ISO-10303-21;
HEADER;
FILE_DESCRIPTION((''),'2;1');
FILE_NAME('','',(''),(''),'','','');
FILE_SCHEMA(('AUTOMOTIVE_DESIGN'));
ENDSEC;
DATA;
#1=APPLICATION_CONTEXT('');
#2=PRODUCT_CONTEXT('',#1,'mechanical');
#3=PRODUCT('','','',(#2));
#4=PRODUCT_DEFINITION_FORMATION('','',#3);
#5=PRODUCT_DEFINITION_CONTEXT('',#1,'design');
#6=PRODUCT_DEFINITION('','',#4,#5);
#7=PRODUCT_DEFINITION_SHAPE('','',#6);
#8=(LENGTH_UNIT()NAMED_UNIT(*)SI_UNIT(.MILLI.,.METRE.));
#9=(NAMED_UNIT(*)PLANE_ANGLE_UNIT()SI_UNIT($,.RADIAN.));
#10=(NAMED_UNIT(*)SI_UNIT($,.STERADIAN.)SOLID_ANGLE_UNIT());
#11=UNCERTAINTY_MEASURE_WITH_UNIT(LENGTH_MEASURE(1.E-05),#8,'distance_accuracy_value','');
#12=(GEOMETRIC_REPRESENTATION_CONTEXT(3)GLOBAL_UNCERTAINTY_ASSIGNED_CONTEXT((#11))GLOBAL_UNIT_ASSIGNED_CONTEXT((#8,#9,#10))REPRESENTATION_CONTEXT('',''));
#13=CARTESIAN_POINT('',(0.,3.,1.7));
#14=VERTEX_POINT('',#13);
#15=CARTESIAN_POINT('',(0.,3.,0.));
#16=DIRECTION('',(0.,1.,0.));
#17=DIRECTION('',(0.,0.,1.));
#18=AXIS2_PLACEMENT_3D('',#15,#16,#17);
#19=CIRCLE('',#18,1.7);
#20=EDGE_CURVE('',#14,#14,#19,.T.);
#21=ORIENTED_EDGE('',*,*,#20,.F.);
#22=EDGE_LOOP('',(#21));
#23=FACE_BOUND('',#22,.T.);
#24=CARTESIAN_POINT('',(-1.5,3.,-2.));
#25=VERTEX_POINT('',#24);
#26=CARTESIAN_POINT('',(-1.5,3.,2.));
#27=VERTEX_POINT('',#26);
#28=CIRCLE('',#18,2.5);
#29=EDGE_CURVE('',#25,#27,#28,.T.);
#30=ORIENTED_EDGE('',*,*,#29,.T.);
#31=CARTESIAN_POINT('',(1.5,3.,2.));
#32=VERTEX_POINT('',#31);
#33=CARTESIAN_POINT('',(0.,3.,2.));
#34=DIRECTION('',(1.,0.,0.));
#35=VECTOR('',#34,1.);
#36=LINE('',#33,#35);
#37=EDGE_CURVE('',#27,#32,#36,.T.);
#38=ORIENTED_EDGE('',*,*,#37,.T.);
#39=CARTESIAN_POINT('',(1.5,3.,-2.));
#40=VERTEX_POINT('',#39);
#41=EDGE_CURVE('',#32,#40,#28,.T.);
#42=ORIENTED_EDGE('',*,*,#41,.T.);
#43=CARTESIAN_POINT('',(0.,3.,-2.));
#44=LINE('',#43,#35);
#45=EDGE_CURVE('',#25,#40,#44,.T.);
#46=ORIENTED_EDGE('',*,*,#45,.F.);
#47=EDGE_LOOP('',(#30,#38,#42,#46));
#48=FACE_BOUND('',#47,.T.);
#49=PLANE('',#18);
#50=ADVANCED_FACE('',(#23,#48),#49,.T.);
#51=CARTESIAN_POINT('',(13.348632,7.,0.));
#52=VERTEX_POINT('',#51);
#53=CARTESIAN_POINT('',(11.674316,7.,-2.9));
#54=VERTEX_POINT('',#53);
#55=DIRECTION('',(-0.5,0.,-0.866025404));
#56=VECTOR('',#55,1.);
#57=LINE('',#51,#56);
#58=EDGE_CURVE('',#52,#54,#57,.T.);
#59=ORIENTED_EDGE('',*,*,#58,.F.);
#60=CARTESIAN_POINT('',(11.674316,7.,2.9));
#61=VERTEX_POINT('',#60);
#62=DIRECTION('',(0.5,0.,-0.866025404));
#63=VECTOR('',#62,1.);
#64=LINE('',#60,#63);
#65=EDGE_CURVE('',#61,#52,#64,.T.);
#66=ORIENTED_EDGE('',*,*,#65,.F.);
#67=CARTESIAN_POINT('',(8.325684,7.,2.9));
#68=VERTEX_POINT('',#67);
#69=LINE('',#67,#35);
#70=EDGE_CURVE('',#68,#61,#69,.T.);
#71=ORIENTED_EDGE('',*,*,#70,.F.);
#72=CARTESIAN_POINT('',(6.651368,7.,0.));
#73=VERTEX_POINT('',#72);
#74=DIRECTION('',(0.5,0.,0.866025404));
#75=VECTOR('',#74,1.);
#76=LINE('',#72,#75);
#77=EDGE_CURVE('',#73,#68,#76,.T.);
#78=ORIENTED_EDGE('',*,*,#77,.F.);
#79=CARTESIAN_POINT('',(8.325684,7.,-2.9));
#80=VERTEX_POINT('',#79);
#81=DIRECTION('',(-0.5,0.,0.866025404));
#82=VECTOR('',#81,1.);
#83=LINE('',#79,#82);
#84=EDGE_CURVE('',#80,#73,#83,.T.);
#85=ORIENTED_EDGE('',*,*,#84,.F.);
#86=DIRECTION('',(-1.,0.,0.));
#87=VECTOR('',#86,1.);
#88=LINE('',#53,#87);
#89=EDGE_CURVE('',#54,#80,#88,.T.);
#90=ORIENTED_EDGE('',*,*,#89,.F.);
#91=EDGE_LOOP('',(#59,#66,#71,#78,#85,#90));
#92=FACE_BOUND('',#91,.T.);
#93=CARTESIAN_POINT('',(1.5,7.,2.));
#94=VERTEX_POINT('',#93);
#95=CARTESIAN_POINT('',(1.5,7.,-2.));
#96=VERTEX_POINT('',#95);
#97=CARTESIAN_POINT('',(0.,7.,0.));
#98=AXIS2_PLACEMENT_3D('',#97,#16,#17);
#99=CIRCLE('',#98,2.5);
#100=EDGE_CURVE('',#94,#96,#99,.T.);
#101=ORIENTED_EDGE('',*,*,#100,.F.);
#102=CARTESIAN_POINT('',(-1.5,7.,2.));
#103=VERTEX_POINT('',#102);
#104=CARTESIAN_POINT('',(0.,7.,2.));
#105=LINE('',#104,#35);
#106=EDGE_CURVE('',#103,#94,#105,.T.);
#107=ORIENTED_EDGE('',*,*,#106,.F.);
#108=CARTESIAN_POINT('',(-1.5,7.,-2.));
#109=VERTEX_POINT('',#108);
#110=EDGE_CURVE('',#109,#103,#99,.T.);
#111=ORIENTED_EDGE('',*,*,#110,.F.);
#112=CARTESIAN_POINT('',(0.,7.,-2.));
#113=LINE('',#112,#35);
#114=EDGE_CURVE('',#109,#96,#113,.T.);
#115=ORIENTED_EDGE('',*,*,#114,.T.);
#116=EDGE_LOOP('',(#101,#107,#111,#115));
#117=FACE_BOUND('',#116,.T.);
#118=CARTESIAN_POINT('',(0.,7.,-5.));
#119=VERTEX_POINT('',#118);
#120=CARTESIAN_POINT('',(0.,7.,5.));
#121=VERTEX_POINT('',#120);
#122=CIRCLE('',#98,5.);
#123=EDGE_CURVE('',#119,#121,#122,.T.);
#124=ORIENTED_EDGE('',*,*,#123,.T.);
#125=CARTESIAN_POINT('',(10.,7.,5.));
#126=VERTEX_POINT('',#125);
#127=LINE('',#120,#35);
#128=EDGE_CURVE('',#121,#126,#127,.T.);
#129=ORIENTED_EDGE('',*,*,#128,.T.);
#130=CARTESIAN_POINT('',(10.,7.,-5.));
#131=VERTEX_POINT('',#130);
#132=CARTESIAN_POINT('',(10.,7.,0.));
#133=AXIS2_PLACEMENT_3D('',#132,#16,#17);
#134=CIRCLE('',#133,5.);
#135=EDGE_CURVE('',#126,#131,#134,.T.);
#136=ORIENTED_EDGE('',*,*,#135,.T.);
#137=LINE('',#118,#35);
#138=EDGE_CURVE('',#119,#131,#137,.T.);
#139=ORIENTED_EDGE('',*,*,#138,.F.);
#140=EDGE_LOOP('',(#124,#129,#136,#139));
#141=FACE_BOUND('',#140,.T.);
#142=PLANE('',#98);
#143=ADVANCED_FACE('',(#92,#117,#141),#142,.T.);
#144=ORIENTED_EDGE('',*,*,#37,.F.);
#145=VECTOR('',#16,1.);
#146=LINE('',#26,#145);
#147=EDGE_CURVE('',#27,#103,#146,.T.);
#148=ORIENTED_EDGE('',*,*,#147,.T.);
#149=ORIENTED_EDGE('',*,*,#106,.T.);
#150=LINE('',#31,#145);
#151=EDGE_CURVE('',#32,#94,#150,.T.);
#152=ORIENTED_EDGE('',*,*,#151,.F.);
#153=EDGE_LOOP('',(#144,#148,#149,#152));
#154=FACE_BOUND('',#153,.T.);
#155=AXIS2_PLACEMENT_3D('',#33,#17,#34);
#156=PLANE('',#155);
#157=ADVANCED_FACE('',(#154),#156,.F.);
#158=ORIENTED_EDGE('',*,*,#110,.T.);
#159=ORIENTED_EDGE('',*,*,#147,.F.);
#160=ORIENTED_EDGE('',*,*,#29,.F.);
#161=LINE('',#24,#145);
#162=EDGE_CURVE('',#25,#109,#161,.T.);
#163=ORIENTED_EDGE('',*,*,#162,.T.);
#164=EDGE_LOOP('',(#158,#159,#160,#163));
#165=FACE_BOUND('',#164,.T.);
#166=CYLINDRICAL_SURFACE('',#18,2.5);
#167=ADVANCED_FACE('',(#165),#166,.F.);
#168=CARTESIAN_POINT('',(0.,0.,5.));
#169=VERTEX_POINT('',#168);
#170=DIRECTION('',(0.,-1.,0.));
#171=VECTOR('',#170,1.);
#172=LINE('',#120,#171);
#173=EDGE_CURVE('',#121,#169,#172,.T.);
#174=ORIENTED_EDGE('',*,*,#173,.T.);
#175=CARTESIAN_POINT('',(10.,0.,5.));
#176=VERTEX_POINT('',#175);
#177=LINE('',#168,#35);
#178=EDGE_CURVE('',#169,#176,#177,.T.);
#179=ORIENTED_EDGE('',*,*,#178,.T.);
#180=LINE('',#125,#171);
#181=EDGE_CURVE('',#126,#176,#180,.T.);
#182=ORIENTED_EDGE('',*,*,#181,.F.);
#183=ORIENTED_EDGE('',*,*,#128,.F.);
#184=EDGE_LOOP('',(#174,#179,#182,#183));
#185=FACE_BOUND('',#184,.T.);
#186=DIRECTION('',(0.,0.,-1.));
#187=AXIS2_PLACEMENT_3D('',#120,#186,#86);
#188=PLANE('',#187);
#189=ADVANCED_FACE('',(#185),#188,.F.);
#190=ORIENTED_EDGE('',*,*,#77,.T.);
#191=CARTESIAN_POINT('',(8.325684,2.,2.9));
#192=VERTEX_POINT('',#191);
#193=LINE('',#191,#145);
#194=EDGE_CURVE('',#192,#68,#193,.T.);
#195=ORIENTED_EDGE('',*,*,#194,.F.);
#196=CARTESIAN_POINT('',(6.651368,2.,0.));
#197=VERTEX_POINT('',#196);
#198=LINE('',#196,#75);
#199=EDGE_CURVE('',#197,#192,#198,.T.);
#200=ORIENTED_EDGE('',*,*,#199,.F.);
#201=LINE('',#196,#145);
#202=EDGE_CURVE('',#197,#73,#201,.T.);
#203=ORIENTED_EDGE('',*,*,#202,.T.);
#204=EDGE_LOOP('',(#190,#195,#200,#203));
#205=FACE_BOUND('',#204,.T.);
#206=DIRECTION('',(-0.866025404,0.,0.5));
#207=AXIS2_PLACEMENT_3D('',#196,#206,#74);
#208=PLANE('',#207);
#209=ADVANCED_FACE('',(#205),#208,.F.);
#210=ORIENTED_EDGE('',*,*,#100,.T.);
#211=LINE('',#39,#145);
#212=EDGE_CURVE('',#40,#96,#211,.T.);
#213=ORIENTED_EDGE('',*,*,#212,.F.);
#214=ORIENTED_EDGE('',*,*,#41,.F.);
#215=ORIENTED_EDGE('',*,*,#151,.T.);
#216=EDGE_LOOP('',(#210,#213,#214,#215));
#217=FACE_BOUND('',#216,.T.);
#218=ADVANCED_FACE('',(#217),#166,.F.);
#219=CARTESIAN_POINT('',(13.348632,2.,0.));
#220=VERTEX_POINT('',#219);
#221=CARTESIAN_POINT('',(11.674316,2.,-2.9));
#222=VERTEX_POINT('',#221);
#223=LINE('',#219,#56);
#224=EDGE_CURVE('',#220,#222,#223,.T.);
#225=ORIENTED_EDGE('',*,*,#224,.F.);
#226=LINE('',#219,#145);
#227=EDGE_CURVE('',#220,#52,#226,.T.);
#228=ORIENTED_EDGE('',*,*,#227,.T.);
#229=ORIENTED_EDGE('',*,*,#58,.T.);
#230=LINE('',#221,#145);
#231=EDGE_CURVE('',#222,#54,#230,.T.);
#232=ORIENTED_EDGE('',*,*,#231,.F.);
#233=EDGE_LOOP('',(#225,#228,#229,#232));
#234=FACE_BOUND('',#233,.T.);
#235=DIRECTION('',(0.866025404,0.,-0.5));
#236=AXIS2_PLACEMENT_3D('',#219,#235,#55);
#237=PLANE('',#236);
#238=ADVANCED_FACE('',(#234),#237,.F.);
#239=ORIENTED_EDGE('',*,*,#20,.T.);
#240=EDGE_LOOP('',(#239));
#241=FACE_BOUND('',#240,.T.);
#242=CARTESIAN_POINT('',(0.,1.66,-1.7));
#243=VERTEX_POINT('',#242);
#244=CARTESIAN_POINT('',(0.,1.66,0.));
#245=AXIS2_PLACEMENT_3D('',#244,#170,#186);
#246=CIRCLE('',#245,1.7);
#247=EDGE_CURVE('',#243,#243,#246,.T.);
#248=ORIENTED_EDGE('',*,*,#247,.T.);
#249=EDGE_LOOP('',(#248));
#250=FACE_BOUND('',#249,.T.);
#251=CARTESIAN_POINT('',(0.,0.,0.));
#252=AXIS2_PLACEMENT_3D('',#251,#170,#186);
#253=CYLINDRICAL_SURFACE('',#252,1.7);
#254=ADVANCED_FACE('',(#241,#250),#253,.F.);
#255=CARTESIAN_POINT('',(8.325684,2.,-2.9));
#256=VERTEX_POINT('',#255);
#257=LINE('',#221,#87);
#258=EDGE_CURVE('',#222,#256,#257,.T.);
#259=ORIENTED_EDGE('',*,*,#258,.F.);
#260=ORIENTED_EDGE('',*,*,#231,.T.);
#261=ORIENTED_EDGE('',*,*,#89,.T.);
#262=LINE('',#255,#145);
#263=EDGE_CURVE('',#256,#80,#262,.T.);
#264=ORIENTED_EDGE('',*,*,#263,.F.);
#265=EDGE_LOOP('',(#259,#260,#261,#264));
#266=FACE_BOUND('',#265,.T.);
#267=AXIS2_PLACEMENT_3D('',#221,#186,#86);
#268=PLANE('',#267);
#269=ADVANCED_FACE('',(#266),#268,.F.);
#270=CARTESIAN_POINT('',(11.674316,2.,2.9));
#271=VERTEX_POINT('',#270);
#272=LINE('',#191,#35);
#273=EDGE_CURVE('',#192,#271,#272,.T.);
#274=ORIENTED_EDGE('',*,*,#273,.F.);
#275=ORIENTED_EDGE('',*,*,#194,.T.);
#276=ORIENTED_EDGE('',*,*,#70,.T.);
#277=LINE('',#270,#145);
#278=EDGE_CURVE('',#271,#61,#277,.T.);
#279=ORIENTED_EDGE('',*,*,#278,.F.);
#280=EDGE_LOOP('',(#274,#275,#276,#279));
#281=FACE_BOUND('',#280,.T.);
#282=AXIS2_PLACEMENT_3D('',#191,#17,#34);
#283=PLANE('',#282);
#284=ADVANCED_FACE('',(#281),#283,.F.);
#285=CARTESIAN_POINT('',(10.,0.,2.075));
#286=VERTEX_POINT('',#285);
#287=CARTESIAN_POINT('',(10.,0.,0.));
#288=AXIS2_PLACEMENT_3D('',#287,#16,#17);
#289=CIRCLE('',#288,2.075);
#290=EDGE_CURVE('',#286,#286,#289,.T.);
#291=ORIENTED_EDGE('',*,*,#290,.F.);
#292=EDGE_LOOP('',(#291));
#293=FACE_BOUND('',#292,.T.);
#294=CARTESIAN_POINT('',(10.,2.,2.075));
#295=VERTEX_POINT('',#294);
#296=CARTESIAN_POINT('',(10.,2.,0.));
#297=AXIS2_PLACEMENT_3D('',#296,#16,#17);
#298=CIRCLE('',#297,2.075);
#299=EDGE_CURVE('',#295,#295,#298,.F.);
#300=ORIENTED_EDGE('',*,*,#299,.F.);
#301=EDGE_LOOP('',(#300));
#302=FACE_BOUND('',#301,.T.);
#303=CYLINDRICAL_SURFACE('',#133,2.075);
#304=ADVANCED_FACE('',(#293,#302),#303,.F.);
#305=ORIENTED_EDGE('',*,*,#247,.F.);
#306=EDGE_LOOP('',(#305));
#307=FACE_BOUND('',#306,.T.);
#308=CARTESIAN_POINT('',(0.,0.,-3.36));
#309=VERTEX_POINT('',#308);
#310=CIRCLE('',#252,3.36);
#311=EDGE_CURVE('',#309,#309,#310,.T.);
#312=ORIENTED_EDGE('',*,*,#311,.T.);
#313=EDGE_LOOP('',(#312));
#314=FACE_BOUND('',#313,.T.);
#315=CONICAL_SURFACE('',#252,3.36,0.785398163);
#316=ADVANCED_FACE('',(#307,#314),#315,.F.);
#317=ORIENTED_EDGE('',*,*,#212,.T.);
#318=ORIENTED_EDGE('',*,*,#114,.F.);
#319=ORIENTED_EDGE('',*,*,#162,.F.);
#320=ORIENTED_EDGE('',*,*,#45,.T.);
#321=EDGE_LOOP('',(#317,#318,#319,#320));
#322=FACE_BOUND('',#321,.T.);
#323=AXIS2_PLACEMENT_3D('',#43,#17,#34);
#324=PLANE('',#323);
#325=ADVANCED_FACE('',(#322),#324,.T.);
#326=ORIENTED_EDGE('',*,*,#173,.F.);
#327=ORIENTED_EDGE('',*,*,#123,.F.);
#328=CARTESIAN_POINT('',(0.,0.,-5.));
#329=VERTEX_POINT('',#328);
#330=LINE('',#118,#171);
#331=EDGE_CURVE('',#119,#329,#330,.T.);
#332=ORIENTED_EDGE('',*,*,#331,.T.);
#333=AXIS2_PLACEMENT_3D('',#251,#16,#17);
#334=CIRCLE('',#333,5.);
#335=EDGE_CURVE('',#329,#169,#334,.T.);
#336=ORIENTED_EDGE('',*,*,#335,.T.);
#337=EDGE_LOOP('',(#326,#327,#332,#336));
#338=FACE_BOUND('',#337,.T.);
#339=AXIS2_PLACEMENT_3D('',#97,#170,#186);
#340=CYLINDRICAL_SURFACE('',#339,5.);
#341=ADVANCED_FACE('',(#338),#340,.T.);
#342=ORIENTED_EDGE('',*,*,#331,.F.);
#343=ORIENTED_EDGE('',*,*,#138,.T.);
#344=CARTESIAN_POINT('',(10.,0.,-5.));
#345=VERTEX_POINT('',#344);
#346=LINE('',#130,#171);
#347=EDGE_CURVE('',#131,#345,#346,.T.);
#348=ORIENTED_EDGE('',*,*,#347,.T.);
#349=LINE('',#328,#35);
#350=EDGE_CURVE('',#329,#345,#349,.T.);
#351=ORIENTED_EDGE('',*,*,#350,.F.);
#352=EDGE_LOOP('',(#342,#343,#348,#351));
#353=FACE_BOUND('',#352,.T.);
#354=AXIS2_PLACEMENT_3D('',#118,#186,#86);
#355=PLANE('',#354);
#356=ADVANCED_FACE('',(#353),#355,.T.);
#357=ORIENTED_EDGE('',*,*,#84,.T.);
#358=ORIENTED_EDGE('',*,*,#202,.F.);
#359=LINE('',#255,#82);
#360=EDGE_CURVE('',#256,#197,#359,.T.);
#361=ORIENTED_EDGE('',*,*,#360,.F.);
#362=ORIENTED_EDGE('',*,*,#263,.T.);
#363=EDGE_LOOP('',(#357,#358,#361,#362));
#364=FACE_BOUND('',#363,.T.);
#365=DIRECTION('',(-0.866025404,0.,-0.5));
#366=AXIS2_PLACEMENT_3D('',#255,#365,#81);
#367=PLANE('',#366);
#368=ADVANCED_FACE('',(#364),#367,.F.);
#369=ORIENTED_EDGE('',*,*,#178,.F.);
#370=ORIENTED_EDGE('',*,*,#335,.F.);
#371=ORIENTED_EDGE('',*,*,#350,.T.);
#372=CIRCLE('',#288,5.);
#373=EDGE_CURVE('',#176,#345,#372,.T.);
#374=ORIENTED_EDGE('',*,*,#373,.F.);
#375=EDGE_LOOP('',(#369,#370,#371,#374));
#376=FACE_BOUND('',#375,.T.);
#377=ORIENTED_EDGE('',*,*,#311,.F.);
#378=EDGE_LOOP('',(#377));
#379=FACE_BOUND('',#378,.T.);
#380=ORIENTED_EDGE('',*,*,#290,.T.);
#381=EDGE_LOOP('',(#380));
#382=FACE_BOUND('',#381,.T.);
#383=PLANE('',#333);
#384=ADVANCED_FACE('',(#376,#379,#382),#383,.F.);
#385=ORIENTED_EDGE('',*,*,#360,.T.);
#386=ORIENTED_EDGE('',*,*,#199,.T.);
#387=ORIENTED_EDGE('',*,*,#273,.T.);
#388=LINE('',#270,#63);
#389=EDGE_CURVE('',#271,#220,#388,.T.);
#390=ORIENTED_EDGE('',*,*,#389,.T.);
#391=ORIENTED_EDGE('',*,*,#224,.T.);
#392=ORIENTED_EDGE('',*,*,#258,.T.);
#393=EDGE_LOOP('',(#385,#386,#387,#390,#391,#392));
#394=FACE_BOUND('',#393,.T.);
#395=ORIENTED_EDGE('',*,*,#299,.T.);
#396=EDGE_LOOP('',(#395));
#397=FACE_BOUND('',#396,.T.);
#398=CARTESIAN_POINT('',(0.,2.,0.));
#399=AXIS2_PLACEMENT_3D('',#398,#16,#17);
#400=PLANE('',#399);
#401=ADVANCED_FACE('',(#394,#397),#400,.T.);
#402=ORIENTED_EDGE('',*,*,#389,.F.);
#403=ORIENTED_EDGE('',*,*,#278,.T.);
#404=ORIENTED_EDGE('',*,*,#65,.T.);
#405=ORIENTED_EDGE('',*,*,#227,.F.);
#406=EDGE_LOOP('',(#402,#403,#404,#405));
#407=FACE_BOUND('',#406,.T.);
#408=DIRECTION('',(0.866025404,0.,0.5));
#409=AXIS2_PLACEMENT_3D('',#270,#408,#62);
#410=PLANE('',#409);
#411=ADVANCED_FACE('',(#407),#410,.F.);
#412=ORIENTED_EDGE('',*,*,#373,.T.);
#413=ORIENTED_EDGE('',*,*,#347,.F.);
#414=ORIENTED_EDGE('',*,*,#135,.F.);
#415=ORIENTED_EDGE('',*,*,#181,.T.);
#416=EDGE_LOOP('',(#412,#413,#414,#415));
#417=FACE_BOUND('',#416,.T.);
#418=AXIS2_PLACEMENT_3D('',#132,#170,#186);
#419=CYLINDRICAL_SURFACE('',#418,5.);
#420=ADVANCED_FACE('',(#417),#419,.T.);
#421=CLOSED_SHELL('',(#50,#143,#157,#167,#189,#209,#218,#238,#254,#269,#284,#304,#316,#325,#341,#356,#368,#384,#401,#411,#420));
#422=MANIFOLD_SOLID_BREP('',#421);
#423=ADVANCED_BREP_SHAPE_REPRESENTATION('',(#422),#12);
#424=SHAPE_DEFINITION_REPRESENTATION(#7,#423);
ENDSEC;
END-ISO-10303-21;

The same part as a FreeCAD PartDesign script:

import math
import FreeCAD as App
import Part
import Sketcher
Q = App.Units.Quantity


def add_polygon(sketch, points):
    """Adds a closed chain of lines whose ends are joined by coincident constraints."""
    first, n = sketch.GeometryCount, len(points)
    for a, b in zip(points, points[1:] + points[:1]):
        sketch.addGeometry(Part.LineSegment(App.Vector(*a, 0), App.Vector(*b, 0)), False)
    for i in range(n):
        sketch.addConstraint(Sketcher.Constraint("Coincident", first + i, 2, first + (i + 1) % n, 1))

doc = App.newDocument("Part")
body = doc.addObject("PartDesign::Body", "Body")

sketch1 = doc.addObject("Sketcher::SketchObject", "Sketch")
body.addObject(sketch1)
sketch1.AttachmentSupport = (doc.XZ_Plane, [""])
sketch1.MapMode = "FlatFace"
sketch1.addGeometry([
    Part.LineSegment(App.Vector(10, -5, 0), App.Vector(0, -5, 0)),
    Part.ArcOfCircle(Part.Circle(App.Vector(0, 0, 0), App.Vector(0, 0, 1), 5), math.radians(90), math.radians(270)),
    Part.LineSegment(App.Vector(0, 5, 0), App.Vector(10, 5, 0)),
    Part.ArcOfCircle(Part.Circle(App.Vector(10, 0, 0), App.Vector(0, 0, 1), 5), math.radians(-90), math.radians(90)),
], False)
sketch1.addConstraint([
    Sketcher.Constraint("Tangent", 0, 2, 1, 2),
    Sketcher.Constraint("Tangent", 1, 1, 2, 1),
    Sketcher.Constraint("Tangent", 2, 2, 3, 2),
    Sketcher.Constraint("Tangent", 3, 1, 0, 1),
    Sketcher.Constraint("Horizontal", 0),
    Sketcher.Constraint("Horizontal", 2),
    Sketcher.Constraint("Coincident", 1, 3, -1, 1),
    Sketcher.Constraint("Radius", 1, 5.0),
    Sketcher.Constraint("DistanceX", 0, 2, 0, 1, 10.0),
])
pad1 = doc.addObject("PartDesign::Pad", "Pad")
body.addObject(pad1)
pad1.Profile = sketch1
pad1.Length = 7
pad1.Reversed = True

sketch2 = doc.addObject("Sketcher::SketchObject", "Sketch001")
body.addObject(sketch2)
sketch2.AttachmentSupport = (doc.XZ_Plane, [""])
sketch2.MapMode = "FlatFace"
sketch2.AttachmentOffset = App.Placement(App.Vector(0, 0, -7), App.Rotation())
sketch2.addGeometry([
    Part.LineSegment(App.Vector(1.5, -2, 0), App.Vector(-1.5, -2, 0)),
    Part.ArcOfCircle(Part.Circle(App.Vector(0, 0, 0), App.Vector(0, 0, 1), 2.5), math.radians(126.869898), math.radians(233.130102)),
    Part.LineSegment(App.Vector(-1.5, 2, 0), App.Vector(1.5, 2, 0)),
    Part.ArcOfCircle(Part.Circle(App.Vector(0, 0, 0), App.Vector(0, 0, 1), 2.5), math.radians(0), math.radians(53.130102)),
    Part.ArcOfCircle(Part.Circle(App.Vector(0, 0, 0), App.Vector(0, 0, 1), 2.5), math.radians(-53.130102), math.radians(0)),
], False)
sketch2.addConstraint([
    Sketcher.Constraint("Coincident", 0, 2, 1, 2),
    Sketcher.Constraint("Coincident", 1, 1, 2, 1),
    Sketcher.Constraint("Coincident", 2, 2, 3, 2),
    Sketcher.Constraint("Tangent", 3, 1, 4, 2),
    Sketcher.Constraint("Coincident", 4, 1, 0, 1),
    Sketcher.Constraint("Horizontal", 0),
    Sketcher.Constraint("Horizontal", 2),
    Sketcher.Constraint("Coincident", 1, 3, -1, 1),
    Sketcher.Constraint("Coincident", 3, 3, -1, 1),
    Sketcher.Constraint("Equal", 1, 3),
    Sketcher.Constraint("Equal", 3, 4),
    Sketcher.Constraint("PointOnObject", 3, 1, -1),
    Sketcher.Constraint("Vertical", 0, 2, 1, 1),
    Sketcher.Constraint("Radius", 1, 2.5),
    Sketcher.Constraint("DistanceX", 0, 2, 0, 1, 3.0),
])
pocket1 = doc.addObject("PartDesign::Pocket", "Pocket")
body.addObject(pocket1)
pocket1.Profile = sketch2
pocket1.Length = 4
pocket1.Reversed = True

sketch3 = doc.addObject("Sketcher::SketchObject", "Sketch002")
body.addObject(sketch3)
sketch3.AttachmentSupport = (doc.XZ_Plane, [""])
sketch3.MapMode = "FlatFace"
sketch3.addGeometry(Part.Circle(App.Vector(0, 0, 0), App.Vector(0, 0, 1), 1.7), False)
sketch3.addConstraint([
    Sketcher.Constraint("Coincident", 0, 3, -1, 1),
    Sketcher.Constraint("Diameter", 0, 3.4),
])
doc.recompute()
hole = doc.addObject("PartDesign::Hole", "Hole")
body.addObject(hole)
hole.Profile = sketch3
hole.ThreadType = "None"
hole.Diameter = 3.4
hole.DepthType = "ThroughAll"
hole.HoleCutType = "Countersink"
hole.HoleCutDiameter = 6.72
hole.HoleCutCountersinkAngle = 90

sketch4 = doc.addObject("Sketcher::SketchObject", "Sketch003")
body.addObject(sketch4)
sketch4.AttachmentSupport = (doc.XZ_Plane, [""])
sketch4.MapMode = "FlatFace"
sketch4.AttachmentOffset = App.Placement(App.Vector(0, 0, -7), App.Rotation())
sketch4.addGeometry(Part.Circle(App.Vector(10, 0, 0), App.Vector(0, 0, 1), 2.075), False)
sketch4.addConstraint([
    Sketcher.Constraint("PointOnObject", 0, 3, -1),
    Sketcher.Constraint("Diameter", 0, 4.15),
    Sketcher.Constraint("DistanceX", -1, 1, 0, 3, 10.0),
])
doc.recompute()
hole2 = doc.addObject("PartDesign::Hole", "Hole001")
body.addObject(hole2)
hole2.Profile = sketch4
hole2.ThreadType = "None"
hole2.Diameter = 4.15
hole2.DepthType = "Dimension"
hole2.Depth = 10
hole2.DrillPoint = "Flat"
hole2.Reversed = True

sketch5 = doc.addObject("Sketcher::SketchObject", "Sketch004")
body.addObject(sketch5)
sketch5.AttachmentSupport = (doc.XZ_Plane, [""])
sketch5.MapMode = "FlatFace"
sketch5.AttachmentOffset = App.Placement(App.Vector(0, 0, -7), App.Rotation())
add_polygon(sketch5, [(13.348632, 0), (11.674316, -2.9), (8.325684, -2.9), (6.651368, 0), (8.325684, 2.9), (11.674316, 2.9)])
sketch5.addConstraint([
    Sketcher.Constraint("Horizontal", 1),
    Sketcher.Constraint("Horizontal", 4),
    Sketcher.Constraint("Symmetric", 1, 2, 3, 2, -1),
    Sketcher.Constraint("PointOnObject", 2, 2, -1),
    Sketcher.Constraint("PointOnObject", 5, 2, -1),
    Sketcher.Constraint("Parallel", 0, 3),
    Sketcher.Constraint("Parallel", 2, 5),
    Sketcher.Constraint("Angle", 0, Q("-120 deg")),
    Sketcher.Constraint("DistanceY", 0, 2, -1, 1, 2.9),
    Sketcher.Constraint("DistanceX", 1, 2, 1, 1, 3.348632),
    Sketcher.Constraint("DistanceX", -1, 1, 2, 2, 6.651368),
])
pocket2 = doc.addObject("PartDesign::Pocket", "Pocket001")
body.addObject(pocket2)
pocket2.Profile = sketch5
pocket2.Length = 5
pocket2.Reversed = True

doc.recompute()
